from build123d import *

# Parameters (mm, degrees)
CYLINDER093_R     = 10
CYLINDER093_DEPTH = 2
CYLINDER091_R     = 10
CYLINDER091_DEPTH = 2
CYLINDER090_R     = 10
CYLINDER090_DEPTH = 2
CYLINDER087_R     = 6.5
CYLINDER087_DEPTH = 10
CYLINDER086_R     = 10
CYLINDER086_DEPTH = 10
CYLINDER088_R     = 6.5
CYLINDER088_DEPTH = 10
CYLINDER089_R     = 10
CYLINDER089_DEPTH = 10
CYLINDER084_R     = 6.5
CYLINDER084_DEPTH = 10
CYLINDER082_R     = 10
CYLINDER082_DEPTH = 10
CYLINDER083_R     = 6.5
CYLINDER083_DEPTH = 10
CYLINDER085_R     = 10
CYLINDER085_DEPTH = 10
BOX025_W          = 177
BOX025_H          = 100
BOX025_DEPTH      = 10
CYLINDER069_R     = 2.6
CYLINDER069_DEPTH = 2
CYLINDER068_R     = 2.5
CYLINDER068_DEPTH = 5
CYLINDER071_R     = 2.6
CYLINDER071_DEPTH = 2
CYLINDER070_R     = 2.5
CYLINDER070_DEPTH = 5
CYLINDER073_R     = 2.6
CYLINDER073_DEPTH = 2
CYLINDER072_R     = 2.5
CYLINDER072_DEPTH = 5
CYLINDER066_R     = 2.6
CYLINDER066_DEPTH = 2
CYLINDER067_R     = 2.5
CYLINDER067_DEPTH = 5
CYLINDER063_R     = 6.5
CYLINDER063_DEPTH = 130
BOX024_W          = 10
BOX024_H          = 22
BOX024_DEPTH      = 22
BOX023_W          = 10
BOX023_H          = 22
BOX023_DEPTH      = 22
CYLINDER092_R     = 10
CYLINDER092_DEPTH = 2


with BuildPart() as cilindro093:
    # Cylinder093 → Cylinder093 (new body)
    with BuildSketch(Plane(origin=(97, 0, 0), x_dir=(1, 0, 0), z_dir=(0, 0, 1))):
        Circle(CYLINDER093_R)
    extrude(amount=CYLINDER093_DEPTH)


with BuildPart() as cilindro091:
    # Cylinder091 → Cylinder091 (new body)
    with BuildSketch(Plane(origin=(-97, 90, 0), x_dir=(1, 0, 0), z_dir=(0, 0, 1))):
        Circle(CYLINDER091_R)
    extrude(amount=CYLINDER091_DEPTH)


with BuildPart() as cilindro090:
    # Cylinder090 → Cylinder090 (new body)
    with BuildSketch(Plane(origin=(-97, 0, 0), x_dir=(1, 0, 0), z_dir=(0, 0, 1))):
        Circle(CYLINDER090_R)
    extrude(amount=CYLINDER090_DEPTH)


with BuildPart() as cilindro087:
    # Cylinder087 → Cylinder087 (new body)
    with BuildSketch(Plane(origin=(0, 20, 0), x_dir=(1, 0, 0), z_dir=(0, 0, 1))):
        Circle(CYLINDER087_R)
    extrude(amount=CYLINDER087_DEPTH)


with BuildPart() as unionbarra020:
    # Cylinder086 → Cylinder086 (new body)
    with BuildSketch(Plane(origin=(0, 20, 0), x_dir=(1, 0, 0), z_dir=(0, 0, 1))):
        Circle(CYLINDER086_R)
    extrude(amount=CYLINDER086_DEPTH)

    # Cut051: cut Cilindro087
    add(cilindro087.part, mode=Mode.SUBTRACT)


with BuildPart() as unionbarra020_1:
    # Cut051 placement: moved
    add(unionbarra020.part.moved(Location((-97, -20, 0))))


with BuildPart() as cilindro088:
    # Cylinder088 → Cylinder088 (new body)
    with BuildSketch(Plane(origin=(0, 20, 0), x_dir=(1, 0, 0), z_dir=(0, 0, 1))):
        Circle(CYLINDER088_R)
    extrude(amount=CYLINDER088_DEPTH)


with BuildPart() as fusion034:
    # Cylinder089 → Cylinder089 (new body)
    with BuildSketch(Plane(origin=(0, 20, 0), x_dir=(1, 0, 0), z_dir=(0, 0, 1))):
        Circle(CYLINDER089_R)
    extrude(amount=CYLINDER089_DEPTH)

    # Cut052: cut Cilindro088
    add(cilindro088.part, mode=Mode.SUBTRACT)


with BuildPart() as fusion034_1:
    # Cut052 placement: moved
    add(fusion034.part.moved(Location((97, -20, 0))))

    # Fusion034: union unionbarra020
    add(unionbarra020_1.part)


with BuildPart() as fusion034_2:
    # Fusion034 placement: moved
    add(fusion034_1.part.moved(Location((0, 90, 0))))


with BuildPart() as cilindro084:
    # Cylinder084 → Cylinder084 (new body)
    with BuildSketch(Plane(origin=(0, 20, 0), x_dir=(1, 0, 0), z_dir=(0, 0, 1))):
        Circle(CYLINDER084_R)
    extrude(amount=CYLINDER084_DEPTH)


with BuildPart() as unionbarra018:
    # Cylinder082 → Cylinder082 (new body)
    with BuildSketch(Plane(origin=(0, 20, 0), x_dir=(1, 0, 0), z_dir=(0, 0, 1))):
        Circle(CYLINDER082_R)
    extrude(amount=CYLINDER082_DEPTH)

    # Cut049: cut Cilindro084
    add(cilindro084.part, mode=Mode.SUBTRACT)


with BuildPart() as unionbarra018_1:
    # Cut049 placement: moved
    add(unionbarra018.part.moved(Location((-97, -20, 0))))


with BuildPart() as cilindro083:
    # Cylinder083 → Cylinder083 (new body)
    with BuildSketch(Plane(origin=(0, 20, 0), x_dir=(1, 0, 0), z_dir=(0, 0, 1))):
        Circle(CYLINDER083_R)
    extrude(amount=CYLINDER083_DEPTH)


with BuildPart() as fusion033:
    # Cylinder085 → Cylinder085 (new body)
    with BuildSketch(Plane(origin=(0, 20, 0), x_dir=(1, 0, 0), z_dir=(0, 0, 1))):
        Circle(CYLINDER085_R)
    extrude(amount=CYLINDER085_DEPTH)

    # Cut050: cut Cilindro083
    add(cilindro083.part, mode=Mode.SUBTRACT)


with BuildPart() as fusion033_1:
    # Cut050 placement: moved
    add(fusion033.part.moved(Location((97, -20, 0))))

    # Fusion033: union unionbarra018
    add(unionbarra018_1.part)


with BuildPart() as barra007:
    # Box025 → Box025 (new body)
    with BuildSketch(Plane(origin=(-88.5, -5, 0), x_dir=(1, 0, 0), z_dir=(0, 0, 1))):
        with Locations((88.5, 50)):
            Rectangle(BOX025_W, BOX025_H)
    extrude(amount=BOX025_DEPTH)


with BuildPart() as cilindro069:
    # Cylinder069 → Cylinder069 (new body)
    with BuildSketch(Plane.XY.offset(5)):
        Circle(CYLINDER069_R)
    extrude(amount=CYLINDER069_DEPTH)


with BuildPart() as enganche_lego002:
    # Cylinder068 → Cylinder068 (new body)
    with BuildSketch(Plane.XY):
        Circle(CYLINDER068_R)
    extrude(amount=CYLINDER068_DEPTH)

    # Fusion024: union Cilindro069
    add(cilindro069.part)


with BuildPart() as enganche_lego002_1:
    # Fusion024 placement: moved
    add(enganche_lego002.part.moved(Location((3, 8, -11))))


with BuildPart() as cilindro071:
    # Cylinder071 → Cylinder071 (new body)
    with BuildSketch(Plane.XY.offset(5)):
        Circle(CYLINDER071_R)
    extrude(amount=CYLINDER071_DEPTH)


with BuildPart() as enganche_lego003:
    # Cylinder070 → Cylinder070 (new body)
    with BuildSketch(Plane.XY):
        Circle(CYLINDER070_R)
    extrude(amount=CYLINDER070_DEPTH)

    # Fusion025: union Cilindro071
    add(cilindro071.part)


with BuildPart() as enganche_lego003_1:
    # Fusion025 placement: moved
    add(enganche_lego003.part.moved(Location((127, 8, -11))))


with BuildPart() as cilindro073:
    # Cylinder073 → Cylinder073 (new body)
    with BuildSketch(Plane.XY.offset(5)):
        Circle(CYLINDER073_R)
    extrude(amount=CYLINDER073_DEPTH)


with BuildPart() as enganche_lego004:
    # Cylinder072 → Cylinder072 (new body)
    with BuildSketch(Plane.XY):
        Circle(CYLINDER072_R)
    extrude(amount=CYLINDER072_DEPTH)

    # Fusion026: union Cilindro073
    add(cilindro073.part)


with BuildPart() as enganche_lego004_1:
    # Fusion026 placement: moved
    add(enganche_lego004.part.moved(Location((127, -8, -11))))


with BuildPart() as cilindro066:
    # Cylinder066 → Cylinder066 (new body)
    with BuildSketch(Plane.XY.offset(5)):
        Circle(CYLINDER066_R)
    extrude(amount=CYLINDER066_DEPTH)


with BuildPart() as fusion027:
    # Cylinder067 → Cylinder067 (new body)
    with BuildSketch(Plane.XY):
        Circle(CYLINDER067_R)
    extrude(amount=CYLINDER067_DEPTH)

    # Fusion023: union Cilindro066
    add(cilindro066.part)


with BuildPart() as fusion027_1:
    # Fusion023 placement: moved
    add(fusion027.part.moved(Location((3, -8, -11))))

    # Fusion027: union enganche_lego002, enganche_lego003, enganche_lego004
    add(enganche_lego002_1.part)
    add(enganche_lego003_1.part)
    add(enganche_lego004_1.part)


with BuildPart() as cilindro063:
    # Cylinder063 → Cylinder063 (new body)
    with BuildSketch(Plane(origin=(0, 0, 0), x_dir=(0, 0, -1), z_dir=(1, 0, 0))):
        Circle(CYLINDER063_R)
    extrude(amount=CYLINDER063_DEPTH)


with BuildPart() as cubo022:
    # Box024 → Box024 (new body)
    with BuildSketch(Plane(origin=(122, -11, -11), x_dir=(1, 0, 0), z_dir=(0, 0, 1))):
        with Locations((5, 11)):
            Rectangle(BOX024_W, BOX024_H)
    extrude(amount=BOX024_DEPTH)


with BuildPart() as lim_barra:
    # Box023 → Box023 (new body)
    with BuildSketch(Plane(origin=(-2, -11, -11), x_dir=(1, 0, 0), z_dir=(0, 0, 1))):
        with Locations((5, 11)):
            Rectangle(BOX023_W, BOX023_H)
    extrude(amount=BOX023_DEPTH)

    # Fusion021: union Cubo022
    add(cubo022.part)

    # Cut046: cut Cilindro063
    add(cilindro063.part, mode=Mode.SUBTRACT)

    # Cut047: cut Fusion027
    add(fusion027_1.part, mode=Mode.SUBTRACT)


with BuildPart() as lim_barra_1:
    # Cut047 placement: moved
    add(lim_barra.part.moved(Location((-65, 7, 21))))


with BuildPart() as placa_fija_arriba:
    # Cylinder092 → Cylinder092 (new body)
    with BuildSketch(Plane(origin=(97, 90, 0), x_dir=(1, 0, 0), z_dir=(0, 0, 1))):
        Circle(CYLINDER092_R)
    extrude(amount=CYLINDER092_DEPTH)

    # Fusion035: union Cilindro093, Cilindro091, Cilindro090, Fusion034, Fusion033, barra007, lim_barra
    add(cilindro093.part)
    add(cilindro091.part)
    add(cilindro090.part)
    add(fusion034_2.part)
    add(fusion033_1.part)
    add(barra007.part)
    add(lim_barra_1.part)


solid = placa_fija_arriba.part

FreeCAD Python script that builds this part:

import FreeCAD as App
import Part
import Sketcher

V = App.Vector
Q = App.Units.Quantity

doc = App.newDocument("Part")
params = doc.addObject("Spreadsheet::Sheet", "Params")
for row, (alias, value) in enumerate([
    ("sketch1_diameter", "20 mm"),
    ("pad1_length", "2 mm"),
    ("sketch2_diameter", "20 mm"),
    ("pad2_length", "2 mm"),
    ("sketch3_diameter", "20 mm"),
    ("pad3_length", "2 mm"),
    ("sketch4_diameter", "13 mm"),
    ("pad4_length", "10 mm"),
    ("sketch5_diameter", "20 mm"),
    ("pad5_length", "10 mm"),
    ("sketch6_diameter", "13 mm"),
    ("pad6_length", "10 mm"),
    ("sketch7_diameter", "20 mm"),
    ("pad7_length", "10 mm"),
    ("sketch8_diameter", "13 mm"),
    ("pad8_length", "10 mm"),
    ("sketch9_diameter", "20 mm"),
    ("pad9_length", "10 mm"),
    ("sketch10_diameter", "13 mm"),
    ("pad10_length", "10 mm"),
    ("sketch11_diameter", "20 mm"),
    ("pad11_length", "10 mm"),
    ("sketch12_width", "177 mm"),
    ("sketch12_height", "100 mm"),
    ("pad12_length", "10 mm"),
    ("sketch13_diameter", "5.2 mm"),
    ("pad13_length", "2 mm"),
    ("sketch14_diameter", "5 mm"),
    ("pad14_length", "5 mm"),
    ("sketch15_diameter", "5.2 mm"),
    ("pad15_length", "2 mm"),
    ("sketch16_diameter", "5 mm"),
    ("pad16_length", "5 mm"),
    ("sketch17_diameter", "5.2 mm"),
    ("pad17_length", "2 mm"),
    ("sketch18_diameter", "5 mm"),
    ("pad18_length", "5 mm"),
    ("sketch19_diameter", "5.2 mm"),
    ("pad19_length", "2 mm"),
    ("sketch20_diameter", "5 mm"),
    ("pad20_length", "5 mm"),
    ("sketch21_diameter", "13 mm"),
    ("pad21_length", "130 mm"),
    ("sketch22_width", "10 mm"),
    ("sketch22_height", "22 mm"),
    ("pad22_length", "22 mm"),
    ("sketch23_width", "10 mm"),
    ("sketch23_height", "22 mm"),
    ("pad23_length", "22 mm"),
    ("sketch24_diameter", "20 mm"),
    ("pad24_length", "2 mm"),
], start=1):
    params.set(f"A{row}", alias)
    params.set(f"B{row}", "=" + value)
    params.setAlias(f"B{row}", alias)

body = doc.addObject("PartDesign::Body", "Body")

sketch1 = doc.addObject("Sketcher::SketchObject", "Sketch")
body.addObject(sketch1)
sketch1.AttachmentSupport = (doc.XY_Plane, [""])
sketch1.MapMode = "FlatFace"
sketch1.addGeometry(Part.Circle(V(97, 0, 0), V(0, 0, 1), 10), False)
sketch1.addConstraint([
    Sketcher.Constraint("PointOnObject", 0, 3, -1),
    Sketcher.Constraint("Diameter", 0, Q("20 mm")),
    Sketcher.Constraint("DistanceX", -1, 1, 0, 3, Q("97 mm")),
])
sketch1.setExpression("Constraints[1]", "Params.sketch1_diameter")
pad1 = doc.addObject("PartDesign::Pad", "Pad")
body.addObject(pad1)
pad1.Profile = sketch1
pad1.setExpression("Length", "Params.pad1_length")
body2 = doc.addObject("PartDesign::Body", "Body001")

sketch2 = doc.addObject("Sketcher::SketchObject", "Sketch001")
body2.addObject(sketch2)
sketch2.AttachmentSupport = (doc.getObject("XY_Plane001"), [""])
sketch2.MapMode = "FlatFace"
sketch2.addGeometry(Part.Circle(V(-97, 90, 0), V(0, 0, 1), 10), False)
sketch2.addConstraint([
    Sketcher.Constraint("Diameter", 0, Q("20 mm")),
    Sketcher.Constraint("DistanceX", 0, 3, -1, 1, Q("97 mm")),
    Sketcher.Constraint("DistanceY", -1, 1, 0, 3, Q("90 mm")),
])
sketch2.setExpression("Constraints[0]", "Params.sketch2_diameter")
pad2 = doc.addObject("PartDesign::Pad", "Pad001")
body2.addObject(pad2)
pad2.Profile = sketch2
pad2.setExpression("Length", "Params.pad2_length")
body3 = doc.addObject("PartDesign::Body", "Body002")

sketch3 = doc.addObject("Sketcher::SketchObject", "Sketch002")
body3.addObject(sketch3)
sketch3.AttachmentSupport = (doc.getObject("XY_Plane002"), [""])
sketch3.MapMode = "FlatFace"
sketch3.addGeometry(Part.Circle(V(-97, 0, 0), V(0, 0, 1), 10), False)
sketch3.addConstraint([
    Sketcher.Constraint("PointOnObject", 0, 3, -1),
    Sketcher.Constraint("Diameter", 0, Q("20 mm")),
    Sketcher.Constraint("DistanceX", 0, 3, -1, 1, Q("97 mm")),
])
sketch3.setExpression("Constraints[1]", "Params.sketch3_diameter")
pad3 = doc.addObject("PartDesign::Pad", "Pad002")
body3.addObject(pad3)
pad3.Profile = sketch3
pad3.setExpression("Length", "Params.pad3_length")
body4 = doc.addObject("PartDesign::Body", "Body003")

sketch4 = doc.addObject("Sketcher::SketchObject", "Sketch003")
body4.addObject(sketch4)
sketch4.AttachmentSupport = (doc.getObject("XY_Plane003"), [""])
sketch4.MapMode = "FlatFace"
sketch4.addGeometry(Part.Circle(V(0, 20, 0), V(0, 0, 1), 6), False)
sketch4.addConstraint([
    Sketcher.Constraint("PointOnObject", 0, 3, -2),
    Sketcher.Constraint("Diameter", 0, Q("13 mm")),
    Sketcher.Constraint("DistanceY", -1, 1, 0, 3, Q("20 mm")),
])
sketch4.setExpression("Constraints[1]", "Params.sketch4_diameter")
pad4 = doc.addObject("PartDesign::Pad", "Pad003")
body4.addObject(pad4)
pad4.Profile = sketch4
pad4.setExpression("Length", "Params.pad4_length")
body5 = doc.addObject("PartDesign::Body", "Body004")

sketch5 = doc.addObject("Sketcher::SketchObject", "Sketch004")
body5.addObject(sketch5)
sketch5.AttachmentSupport = (doc.getObject("XY_Plane004"), [""])
sketch5.MapMode = "FlatFace"
sketch5.addGeometry(Part.Circle(V(0, 20, 0), V(0, 0, 1), 10), False)
sketch5.addConstraint([
    Sketcher.Constraint("PointOnObject", 0, 3, -2),
    Sketcher.Constraint("Diameter", 0, Q("20 mm")),
    Sketcher.Constraint("DistanceY", -1, 1, 0, 3, Q("20 mm")),
])
sketch5.setExpression("Constraints[1]", "Params.sketch5_diameter")
pad5 = doc.addObject("PartDesign::Pad", "Pad004")
body5.addObject(pad5)
pad5.Profile = sketch5
pad5.setExpression("Length", "Params.pad5_length")
doc.recompute()

boolean = doc.addObject("PartDesign::Boolean", "Boolean")
body5.addObject(boolean)
boolean.Type = "Cut"
boolean.addObjects([body4])
body6 = doc.addObject("PartDesign::Body", "Body005")
doc.recompute()

body5.Placement = App.Placement(V(-97, -20, 0), App.Rotation(V(0, 0, 1), 0))
boolean2 = doc.addObject("PartDesign::Boolean", "Boolean001")
body6.addObject(boolean2)
boolean2.Type = "Fuse"
boolean2.addObjects([body5])
body7 = doc.addObject("PartDesign::Body", "Body006")

sketch6 = doc.addObject("Sketcher::SketchObject", "Sketch005")
body7.addObject(sketch6)
sketch6.AttachmentSupport = (doc.getObject("XY_Plane006"), [""])
sketch6.MapMode = "FlatFace"
sketch6.addGeometry(Part.Circle(V(0, 20, 0), V(0, 0, 1), 6), False)
sketch6.addConstraint([
    Sketcher.Constraint("PointOnObject", 0, 3, -2),
    Sketcher.Constraint("Diameter", 0, Q("13 mm")),
    Sketcher.Constraint("DistanceY", -1, 1, 0, 3, Q("20 mm")),
])
sketch6.setExpression("Constraints[1]", "Params.sketch6_diameter")
pad6 = doc.addObject("PartDesign::Pad", "Pad005")
body7.addObject(pad6)
pad6.Profile = sketch6
pad6.setExpression("Length", "Params.pad6_length")
body8 = doc.addObject("PartDesign::Body", "Body007")

sketch7 = doc.addObject("Sketcher::SketchObject", "Sketch006")
body8.addObject(sketch7)
sketch7.AttachmentSupport = (doc.getObject("XY_Plane007"), [""])
sketch7.MapMode = "FlatFace"
sketch7.addGeometry(Part.Circle(V(0, 20, 0), V(0, 0, 1), 10), False)
sketch7.addConstraint([
    Sketcher.Constraint("PointOnObject", 0, 3, -2),
    Sketcher.Constraint("Diameter", 0, Q("20 mm")),
    Sketcher.Constraint("DistanceY", -1, 1, 0, 3, Q("20 mm")),
])
sketch7.setExpression("Constraints[1]", "Params.sketch7_diameter")
pad7 = doc.addObject("PartDesign::Pad", "Pad006")
body8.addObject(pad7)
pad7.Profile = sketch7
pad7.setExpression("Length", "Params.pad7_length")
doc.recompute()

boolean3 = doc.addObject("PartDesign::Boolean", "Boolean002")
body8.addObject(boolean3)
boolean3.Type = "Cut"
boolean3.addObjects([body7])
body9 = doc.addObject("PartDesign::Body", "Body008")
body9.AllowCompound = True
doc.recompute()

body8.Placement = App.Placement(V(97, -20, 0), App.Rotation(V(0, 0, 1), 0))
boolean4 = doc.addObject("PartDesign::Boolean", "Boolean003")
body9.addObject(boolean4)
boolean4.Type = "Fuse"
boolean4.addObjects([body8])
doc.recompute()

boolean5 = doc.addObject("PartDesign::Boolean", "Boolean004")
body9.addObject(boolean5)
boolean5.Type = "Fuse"
boolean5.addObjects([body6])
body10 = doc.addObject("PartDesign::Body", "Body009")
body10.AllowCompound = True
doc.recompute()

body9.Placement = App.Placement(V(0, 90, 0), App.Rotation(V(0, 0, 1), 0))
boolean6 = doc.addObject("PartDesign::Boolean", "Boolean005")
body10.addObject(boolean6)
boolean6.Type = "Fuse"
boolean6.addObjects([body9])
body11 = doc.addObject("PartDesign::Body", "Body010")

sketch8 = doc.addObject("Sketcher::SketchObject", "Sketch007")
body11.addObject(sketch8)
sketch8.AttachmentSupport = (doc.getObject("XY_Plane010"), [""])
sketch8.MapMode = "FlatFace"
sketch8.addGeometry(Part.Circle(V(0, 20, 0), V(0, 0, 1), 6), False)
sketch8.addConstraint([
    Sketcher.Constraint("PointOnObject", 0, 3, -2),
    Sketcher.Constraint("Diameter", 0, Q("13 mm")),
    Sketcher.Constraint("DistanceY", -1, 1, 0, 3, Q("20 mm")),
])
sketch8.setExpression("Constraints[1]", "Params.sketch8_diameter")
pad8 = doc.addObject("PartDesign::Pad", "Pad007")
body11.addObject(pad8)
pad8.Profile = sketch8
pad8.setExpression("Length", "Params.pad8_length")
body12 = doc.addObject("PartDesign::Body", "Body011")

sketch9 = doc.addObject("Sketcher::SketchObject", "Sketch008")
body12.addObject(sketch9)
sketch9.AttachmentSupport = (doc.getObject("XY_Plane011"), [""])
sketch9.MapMode = "FlatFace"
sketch9.addGeometry(Part.Circle(V(0, 20, 0), V(0, 0, 1), 10), False)
sketch9.addConstraint([
    Sketcher.Constraint("PointOnObject", 0, 3, -2),
    Sketcher.Constraint("Diameter", 0, Q("20 mm")),
    Sketcher.Constraint("DistanceY", -1, 1, 0, 3, Q("20 mm")),
])
sketch9.setExpression("Constraints[1]", "Params.sketch9_diameter")
pad9 = doc.addObject("PartDesign::Pad", "Pad008")
body12.addObject(pad9)
pad9.Profile = sketch9
pad9.setExpression("Length", "Params.pad9_length")
doc.recompute()

boolean7 = doc.addObject("PartDesign::Boolean", "Boolean006")
body12.addObject(boolean7)
boolean7.Type = "Cut"
boolean7.addObjects([body11])
body13 = doc.addObject("PartDesign::Body", "Body012")
doc.recompute()

body12.Placement = App.Placement(V(-97, -20, 0), App.Rotation(V(0, 0, 1), 0))
boolean8 = doc.addObject("PartDesign::Boolean", "Boolean007")
body13.addObject(boolean8)
boolean8.Type = "Fuse"
boolean8.addObjects([body12])
body14 = doc.addObject("PartDesign::Body", "Body013")

sketch10 = doc.addObject("Sketcher::SketchObject", "Sketch009")
body14.addObject(sketch10)
sketch10.AttachmentSupport = (doc.getObject("XY_Plane013"), [""])
sketch10.MapMode = "FlatFace"
sketch10.addGeometry(Part.Circle(V(0, 20, 0), V(0, 0, 1), 6), False)
sketch10.addConstraint([
    Sketcher.Constraint("PointOnObject", 0, 3, -2),
    Sketcher.Constraint("Diameter", 0, Q("13 mm")),
    Sketcher.Constraint("DistanceY", -1, 1, 0, 3, Q("20 mm")),
])
sketch10.setExpression("Constraints[1]", "Params.sketch10_diameter")
pad10 = doc.addObject("PartDesign::Pad", "Pad009")
body14.addObject(pad10)
pad10.Profile = sketch10
pad10.setExpression("Length", "Params.pad10_length")
body15 = doc.addObject("PartDesign::Body", "Body014")

sketch11 = doc.addObject("Sketcher::SketchObject", "Sketch010")
body15.addObject(sketch11)
sketch11.AttachmentSupport = (doc.getObject("XY_Plane014"), [""])
sketch11.MapMode = "FlatFace"
sketch11.addGeometry(Part.Circle(V(0, 20, 0), V(0, 0, 1), 10), False)
sketch11.addConstraint([
    Sketcher.Constraint("PointOnObject", 0, 3, -2),
    Sketcher.Constraint("Diameter", 0, Q("20 mm")),
    Sketcher.Constraint("DistanceY", -1, 1, 0, 3, Q("20 mm")),
])
sketch11.setExpression("Constraints[1]", "Params.sketch11_diameter")
pad11 = doc.addObject("PartDesign::Pad", "Pad010")
body15.addObject(pad11)
pad11.Profile = sketch11
pad11.setExpression("Length", "Params.pad11_length")
doc.recompute()

boolean9 = doc.addObject("PartDesign::Boolean", "Boolean008")
body15.addObject(boolean9)
boolean9.Type = "Cut"
boolean9.addObjects([body14])
body16 = doc.addObject("PartDesign::Body", "Body015")
body16.AllowCompound = True
doc.recompute()

body15.Placement = App.Placement(V(97, -20, 0), App.Rotation(V(0, 0, 1), 0))
boolean10 = doc.addObject("PartDesign::Boolean", "Boolean009")
body16.addObject(boolean10)
boolean10.Type = "Fuse"
boolean10.addObjects([body15])
doc.recompute()

boolean11 = doc.addObject("PartDesign::Boolean", "Boolean010")
body16.addObject(boolean11)
boolean11.Type = "Fuse"
boolean11.addObjects([body13])
body17 = doc.addObject("PartDesign::Body", "Body016")

sketch12 = doc.addObject("Sketcher::SketchObject", "Sketch011")
body17.addObject(sketch12)
sketch12.AttachmentSupport = (doc.getObject("XY_Plane016"), [""])
sketch12.MapMode = "FlatFace"
sketch12.addGeometry([
    Part.LineSegment(V(-88, 95, 0), V(-88, -5, 0)),
    Part.LineSegment(V(-88, -5, 0), V(88, -5, 0)),
    Part.LineSegment(V(88, -5, 0), V(88, 95, 0)),
    Part.LineSegment(V(88, 95, 0), V(-88, 95, 0)),
], False)
sketch12.addConstraint([
    Sketcher.Constraint("Coincident", 0, 2, 1, 1),
    Sketcher.Constraint("Coincident", 1, 2, 2, 1),
    Sketcher.Constraint("Coincident", 2, 2, 3, 1),
    Sketcher.Constraint("Coincident", 3, 2, 0, 1),
    Sketcher.Constraint("Vertical", 0),
    Sketcher.Constraint("Horizontal", 1),
    Sketcher.Constraint("Vertical", 2),
    Sketcher.Constraint("Horizontal", 3),
    Sketcher.Constraint("DistanceX", 1, 1, 1, 2, Q("177 mm")),
    Sketcher.Constraint("DistanceY", 0, 2, 0, 1, Q("100 mm")),
    Sketcher.Constraint("DistanceY", 0, 2, -1, 1, Q("5 mm")),
    Sketcher.Constraint("DistanceX", 0, 2, -1, 1, Q("88.5 mm")),
])
sketch12.setExpression("Constraints[8]", "Params.sketch12_width")
sketch12.setExpression("Constraints[9]", "Params.sketch12_height")
pad12 = doc.addObject("PartDesign::Pad", "Pad011")
body17.addObject(pad12)
pad12.Profile = sketch12
pad12.setExpression("Length", "Params.pad12_length")
body18 = doc.addObject("PartDesign::Body", "Body017")

sketch13 = doc.addObject("Sketcher::SketchObject", "Sketch012")
body18.addObject(sketch13)
sketch13.AttachmentSupport = (doc.getObject("XY_Plane017"), [""])
sketch13.MapMode = "FlatFace"
sketch13.AttachmentOffset = App.Placement(V(0, 0, 5), App.Rotation())
sketch13.addGeometry(Part.Circle(V(0, 0, 0), V(0, 0, 1), 2.6), False)
sketch13.addConstraint([
    Sketcher.Constraint("Coincident", 0, 3, -1, 1),
    Sketcher.Constraint("Diameter", 0, Q("5.2 mm")),
])
sketch13.setExpression("Constraints[1]", "Params.sketch13_diameter")
pad13 = doc.addObject("PartDesign::Pad", "Pad012")
body18.addObject(pad13)
pad13.Profile = sketch13
pad13.setExpression("Length", "Params.pad13_length")
body19 = doc.addObject("PartDesign::Body", "Body018")

sketch14 = doc.addObject("Sketcher::SketchObject", "Sketch013")
body19.addObject(sketch14)
sketch14.AttachmentSupport = (doc.getObject("XY_Plane018"), [""])
sketch14.MapMode = "FlatFace"
sketch14.addGeometry(Part.Circle(V(0, 0, 0), V(0, 0, 1), 2.5), False)
sketch14.addConstraint([
    Sketcher.Constraint("Coincident", 0, 3, -1, 1),
    Sketcher.Constraint("Diameter", 0, Q("5 mm")),
])
sketch14.setExpression("Constraints[1]", "Params.sketch14_diameter")
pad14 = doc.addObject("PartDesign::Pad", "Pad013")
body19.addObject(pad14)
pad14.Profile = sketch14
pad14.setExpression("Length", "Params.pad14_length")
doc.recompute()

boolean12 = doc.addObject("PartDesign::Boolean", "Boolean011")
body19.addObject(boolean12)
boolean12.Type = "Fuse"
boolean12.addObjects([body18])
body20 = doc.addObject("PartDesign::Body", "Body019")
doc.recompute()

body19.Placement = App.Placement(V(3, 8, -11), App.Rotation(V(0, 0, 1), 0))
boolean13 = doc.addObject("PartDesign::Boolean", "Boolean012")
body20.addObject(boolean13)
boolean13.Type = "Fuse"
boolean13.addObjects([body19])
body21 = doc.addObject("PartDesign::Body", "Body020")

sketch15 = doc.addObject("Sketcher::SketchObject", "Sketch014")
body21.addObject(sketch15)
sketch15.AttachmentSupport = (doc.getObject("XY_Plane020"), [""])
sketch15.MapMode = "FlatFace"
sketch15.AttachmentOffset = App.Placement(V(0, 0, 5), App.Rotation())
sketch15.addGeometry(Part.Circle(V(0, 0, 0), V(0, 0, 1), 2.6), False)
sketch15.addConstraint([
    Sketcher.Constraint("Coincident", 0, 3, -1, 1),
    Sketcher.Constraint("Diameter", 0, Q("5.2 mm")),
])
sketch15.setExpression("Constraints[1]", "Params.sketch15_diameter")
pad15 = doc.addObject("PartDesign::Pad", "Pad014")
body21.addObject(pad15)
pad15.Profile = sketch15
pad15.setExpression("Length", "Params.pad15_length")
body22 = doc.addObject("PartDesign::Body", "Body021")

sketch16 = doc.addObject("Sketcher::SketchObject", "Sketch015")
body22.addObject(sketch16)
sketch16.AttachmentSupport = (doc.getObject("XY_Plane021"), [""])
sketch16.MapMode = "FlatFace"
sketch16.addGeometry(Part.Circle(V(0, 0, 0), V(0, 0, 1), 2.5), False)
sketch16.addConstraint([
    Sketcher.Constraint("Coincident", 0, 3, -1, 1),
    Sketcher.Constraint("Diameter", 0, Q("5 mm")),
])
sketch16.setExpression("Constraints[1]", "Params.sketch16_diameter")
pad16 = doc.addObject("PartDesign::Pad", "Pad015")
body22.addObject(pad16)
pad16.Profile = sketch16
pad16.setExpression("Length", "Params.pad16_length")
doc.recompute()

boolean14 = doc.addObject("PartDesign::Boolean", "Boolean013")
body22.addObject(boolean14)
boolean14.Type = "Fuse"
boolean14.addObjects([body21])
body23 = doc.addObject("PartDesign::Body", "Body022")
doc.recompute()

body22.Placement = App.Placement(V(127, 8, -11), App.Rotation(V(0, 0, 1), 0))
boolean15 = doc.addObject("PartDesign::Boolean", "Boolean014")
body23.addObject(boolean15)
boolean15.Type = "Fuse"
boolean15.addObjects([body22])
body24 = doc.addObject("PartDesign::Body", "Body023")

sketch17 = doc.addObject("Sketcher::SketchObject", "Sketch016")
body24.addObject(sketch17)
sketch17.AttachmentSupport = (doc.getObject("XY_Plane023"), [""])
sketch17.MapMode = "FlatFace"
sketch17.AttachmentOffset = App.Placement(V(0, 0, 5), App.Rotation())
sketch17.addGeometry(Part.Circle(V(0, 0, 0), V(0, 0, 1), 2.6), False)
sketch17.addConstraint([
    Sketcher.Constraint("Coincident", 0, 3, -1, 1),
    Sketcher.Constraint("Diameter", 0, Q("5.2 mm")),
])
sketch17.setExpression("Constraints[1]", "Params.sketch17_diameter")
pad17 = doc.addObject("PartDesign::Pad", "Pad016")
body24.addObject(pad17)
pad17.Profile = sketch17
pad17.setExpression("Length", "Params.pad17_length")
body25 = doc.addObject("PartDesign::Body", "Body024")

sketch18 = doc.addObject("Sketcher::SketchObject", "Sketch017")
body25.addObject(sketch18)
sketch18.AttachmentSupport = (doc.getObject("XY_Plane024"), [""])
sketch18.MapMode = "FlatFace"
sketch18.addGeometry(Part.Circle(V(0, 0, 0), V(0, 0, 1), 2.5), False)
sketch18.addConstraint([
    Sketcher.Constraint("Coincident", 0, 3, -1, 1),
    Sketcher.Constraint("Diameter", 0, Q("5 mm")),
])
sketch18.setExpression("Constraints[1]", "Params.sketch18_diameter")
pad18 = doc.addObject("PartDesign::Pad", "Pad017")
body25.addObject(pad18)
pad18.Profile = sketch18
pad18.setExpression("Length", "Params.pad18_length")
doc.recompute()

boolean16 = doc.addObject("PartDesign::Boolean", "Boolean015")
body25.addObject(boolean16)
boolean16.Type = "Fuse"
boolean16.addObjects([body24])
body26 = doc.addObject("PartDesign::Body", "Body025")
doc.recompute()

body25.Placement = App.Placement(V(127, -8, -11), App.Rotation(V(0, 0, 1), 0))
boolean17 = doc.addObject("PartDesign::Boolean", "Boolean016")
body26.addObject(boolean17)
boolean17.Type = "Fuse"
boolean17.addObjects([body25])
body27 = doc.addObject("PartDesign::Body", "Body026")

sketch19 = doc.addObject("Sketcher::SketchObject", "Sketch018")
body27.addObject(sketch19)
sketch19.AttachmentSupport = (doc.getObject("XY_Plane026"), [""])
sketch19.MapMode = "FlatFace"
sketch19.AttachmentOffset = App.Placement(V(0, 0, 5), App.Rotation())
sketch19.addGeometry(Part.Circle(V(0, 0, 0), V(0, 0, 1), 2.6), False)
sketch19.addConstraint([
    Sketcher.Constraint("Coincident", 0, 3, -1, 1),
    Sketcher.Constraint("Diameter", 0, Q("5.2 mm")),
])
sketch19.setExpression("Constraints[1]", "Params.sketch19_diameter")
pad19 = doc.addObject("PartDesign::Pad", "Pad018")
body27.addObject(pad19)
pad19.Profile = sketch19
pad19.setExpression("Length", "Params.pad19_length")
body28 = doc.addObject("PartDesign::Body", "Body027")

sketch20 = doc.addObject("Sketcher::SketchObject", "Sketch019")
body28.addObject(sketch20)
sketch20.AttachmentSupport = (doc.getObject("XY_Plane027"), [""])
sketch20.MapMode = "FlatFace"
sketch20.addGeometry(Part.Circle(V(0, 0, 0), V(0, 0, 1), 2.5), False)
sketch20.addConstraint([
    Sketcher.Constraint("Coincident", 0, 3, -1, 1),
    Sketcher.Constraint("Diameter", 0, Q("5 mm")),
])
sketch20.setExpression("Constraints[1]", "Params.sketch20_diameter")
pad20 = doc.addObject("PartDesign::Pad", "Pad019")
body28.addObject(pad20)
pad20.Profile = sketch20
pad20.setExpression("Length", "Params.pad20_length")
doc.recompute()

boolean18 = doc.addObject("PartDesign::Boolean", "Boolean017")
body28.addObject(boolean18)
boolean18.Type = "Fuse"
boolean18.addObjects([body27])
body29 = doc.addObject("PartDesign::Body", "Body028")
body29.AllowCompound = True
doc.recompute()

body28.Placement = App.Placement(V(3, -8, -11), App.Rotation(V(0, 0, 1), 0))
boolean19 = doc.addObject("PartDesign::Boolean", "Boolean018")
body29.addObject(boolean19)
boolean19.Type = "Fuse"
boolean19.addObjects([body28])
doc.recompute()

boolean20 = doc.addObject("PartDesign::Boolean", "Boolean019")
body29.addObject(boolean20)
boolean20.Type = "Fuse"
boolean20.addObjects([body20])
doc.recompute()

boolean21 = doc.addObject("PartDesign::Boolean", "Boolean020")
body29.addObject(boolean21)
boolean21.Type = "Fuse"
boolean21.addObjects([body23])
doc.recompute()

boolean22 = doc.addObject("PartDesign::Boolean", "Boolean021")
body29.addObject(boolean22)
boolean22.Type = "Fuse"
boolean22.addObjects([body26])
body30 = doc.addObject("PartDesign::Body", "Body029")

sketch21 = doc.addObject("Sketcher::SketchObject", "Sketch020")
body30.addObject(sketch21)
sketch21.AttachmentSupport = (doc.getObject("YZ_Plane029"), [""])
sketch21.MapMode = "FlatFace"
sketch21.addGeometry(Part.Circle(V(0, 0, 0), V(0, 0, 1), 6), False)
sketch21.addConstraint([
    Sketcher.Constraint("Coincident", 0, 3, -1, 1),
    Sketcher.Constraint("Diameter", 0, Q("13 mm")),
])
sketch21.setExpression("Constraints[1]", "Params.sketch21_diameter")
pad21 = doc.addObject("PartDesign::Pad", "Pad020")
body30.addObject(pad21)
pad21.Profile = sketch21
pad21.setExpression("Length", "Params.pad21_length")
body31 = doc.addObject("PartDesign::Body", "Body030")

sketch22 = doc.addObject("Sketcher::SketchObject", "Sketch021")
body31.addObject(sketch22)
sketch22.AttachmentSupport = (doc.getObject("XY_Plane030"), [""])
sketch22.MapMode = "FlatFace"
sketch22.AttachmentOffset = App.Placement(V(0, 0, -11), App.Rotation())
sketch22.addGeometry([
    Part.LineSegment(V(122, 11, 0), V(122, -11, 0)),
    Part.LineSegment(V(122, -11, 0), V(132, -11, 0)),
    Part.LineSegment(V(132, -11, 0), V(132, 11, 0)),
    Part.LineSegment(V(132, 11, 0), V(122, 11, 0)),
], False)
sketch22.addConstraint([
    Sketcher.Constraint("Coincident", 0, 2, 1, 1),
    Sketcher.Constraint("Coincident", 1, 2, 2, 1),
    Sketcher.Constraint("Coincident", 2, 2, 3, 1),
    Sketcher.Constraint("Coincident", 3, 2, 0, 1),
    Sketcher.Constraint("Vertical", 0),
    Sketcher.Constraint("Horizontal", 1),
    Sketcher.Constraint("Vertical", 2),
    Sketcher.Constraint("Horizontal", 3),
    Sketcher.Constraint("DistanceX", 1, 1, 1, 2, Q("10 mm")),
    Sketcher.Constraint("DistanceY", 0, 2, 0, 1, Q("22 mm")),
    Sketcher.Constraint("DistanceX", -1, 1, 0, 2, Q("122 mm")),
    Sketcher.Constraint("DistanceY", 0, 2, -1, 1, Q("11 mm")),
])
sketch22.setExpression("Constraints[8]", "Params.sketch22_width")
sketch22.setExpression("Constraints[9]", "Params.sketch22_height")
pad22 = doc.addObject("PartDesign::Pad", "Pad021")
body31.addObject(pad22)
pad22.Profile = sketch22
pad22.setExpression("Length", "Params.pad22_length")
body32 = doc.addObject("PartDesign::Body", "Body031")
body32.AllowCompound = True

sketch23 = doc.addObject("Sketcher::SketchObject", "Sketch022")
body32.addObject(sketch23)
sketch23.AttachmentSupport = (doc.getObject("XY_Plane031"), [""])
sketch23.MapMode = "FlatFace"
sketch23.AttachmentOffset = App.Placement(V(0, 0, -11), App.Rotation())
sketch23.addGeometry([
    Part.LineSegment(V(-2, 11, 0), V(-2, -11, 0)),
    Part.LineSegment(V(-2, -11, 0), V(8, -11, 0)),
    Part.LineSegment(V(8, -11, 0), V(8, 11, 0)),
    Part.LineSegment(V(8, 11, 0), V(-2, 11, 0)),
], False)
sketch23.addConstraint([
    Sketcher.Constraint("Coincident", 0, 2, 1, 1),
    Sketcher.Constraint("Coincident", 1, 2, 2, 1),
    Sketcher.Constraint("Coincident", 2, 2, 3, 1),
    Sketcher.Constraint("Coincident", 3, 2, 0, 1),
    Sketcher.Constraint("Vertical", 0),
    Sketcher.Constraint("Horizontal", 1),
    Sketcher.Constraint("Vertical", 2),
    Sketcher.Constraint("Horizontal", 3),
    Sketcher.Constraint("DistanceX", 1, 1, 1, 2, Q("10 mm")),
    Sketcher.Constraint("DistanceY", 0, 2, 0, 1, Q("22 mm")),
    Sketcher.Constraint("DistanceX", 0, 2, -1, 1, Q("2 mm")),
    Sketcher.Constraint("DistanceY", 0, 2, -1, 1, Q("11 mm")),
])
sketch23.setExpression("Constraints[8]", "Params.sketch23_width")
sketch23.setExpression("Constraints[9]", "Params.sketch23_height")
pad23 = doc.addObject("PartDesign::Pad", "Pad022")
body32.addObject(pad23)
pad23.Profile = sketch23
pad23.setExpression("Length", "Params.pad23_length")
doc.recompute()

boolean23 = doc.addObject("PartDesign::Boolean", "Boolean022")
body32.addObject(boolean23)
boolean23.Type = "Fuse"
boolean23.addObjects([body31])
doc.recompute()

boolean24 = doc.addObject("PartDesign::Boolean", "Boolean023")
body32.addObject(boolean24)
boolean24.Type = "Cut"
boolean24.addObjects([body30])
doc.recompute()

boolean25 = doc.addObject("PartDesign::Boolean", "Boolean024")
body32.addObject(boolean25)
boolean25.Type = "Cut"
boolean25.addObjects([body29])
body33 = doc.addObject("PartDesign::Body", "Body032")
body33.AllowCompound = True
doc.recompute()

body32.Placement = App.Placement(V(-65, 7, 21), App.Rotation(V(0, 0, 1), 0))
boolean26 = doc.addObject("PartDesign::Boolean", "Boolean025")
body33.addObject(boolean26)
boolean26.Type = "Fuse"
boolean26.addObjects([body32])
body34 = doc.addObject("PartDesign::Body", "Body033")
body34.AllowCompound = True

sketch24 = doc.addObject("Sketcher::SketchObject", "Sketch023")
body34.addObject(sketch24)
sketch24.AttachmentSupport = (doc.getObject("XY_Plane033"), [""])
sketch24.MapMode = "FlatFace"
sketch24.addGeometry(Part.Circle(V(97, 90, 0), V(0, 0, 1), 10), False)
sketch24.addConstraint([
    Sketcher.Constraint("Diameter", 0, Q("20 mm")),
    Sketcher.Constraint("DistanceX", -1, 1, 0, 3, Q("97 mm")),
    Sketcher.Constraint("DistanceY", -1, 1, 0, 3, Q("90 mm")),
])
sketch24.setExpression("Constraints[0]", "Params.sketch24_diameter")
pad24 = doc.addObject("PartDesign::Pad", "Pad023")
body34.addObject(pad24)
pad24.Profile = sketch24
pad24.setExpression("Length", "Params.pad24_length")
doc.recompute()

boolean27 = doc.addObject("PartDesign::Boolean", "Boolean026")
body34.addObject(boolean27)
boolean27.Type = "Fuse"
boolean27.addObjects([body])
doc.recompute()

boolean28 = doc.addObject("PartDesign::Boolean", "Boolean027")
body34.addObject(boolean28)
boolean28.Type = "Fuse"
boolean28.addObjects([body2])
doc.recompute()

boolean29 = doc.addObject("PartDesign::Boolean", "Boolean028")
body34.addObject(boolean29)
boolean29.Type = "Fuse"
boolean29.addObjects([body3])
doc.recompute()

boolean30 = doc.addObject("PartDesign::Boolean", "Boolean029")
body34.addObject(boolean30)
boolean30.Type = "Fuse"
boolean30.addObjects([body10])
doc.recompute()

boolean31 = doc.addObject("PartDesign::Boolean", "Boolean030")
body34.addObject(boolean31)
boolean31.Type = "Fuse"
boolean31.addObjects([body16])
doc.recompute()

boolean32 = doc.addObject("PartDesign::Boolean", "Boolean031")
body34.addObject(boolean32)
boolean32.Type = "Fuse"
boolean32.addObjects([body17])
doc.recompute()

boolean33 = doc.addObject("PartDesign::Boolean", "Boolean032")
body34.addObject(boolean33)
boolean33.Type = "Fuse"
boolean33.addObjects([body33])

doc.recompute()
